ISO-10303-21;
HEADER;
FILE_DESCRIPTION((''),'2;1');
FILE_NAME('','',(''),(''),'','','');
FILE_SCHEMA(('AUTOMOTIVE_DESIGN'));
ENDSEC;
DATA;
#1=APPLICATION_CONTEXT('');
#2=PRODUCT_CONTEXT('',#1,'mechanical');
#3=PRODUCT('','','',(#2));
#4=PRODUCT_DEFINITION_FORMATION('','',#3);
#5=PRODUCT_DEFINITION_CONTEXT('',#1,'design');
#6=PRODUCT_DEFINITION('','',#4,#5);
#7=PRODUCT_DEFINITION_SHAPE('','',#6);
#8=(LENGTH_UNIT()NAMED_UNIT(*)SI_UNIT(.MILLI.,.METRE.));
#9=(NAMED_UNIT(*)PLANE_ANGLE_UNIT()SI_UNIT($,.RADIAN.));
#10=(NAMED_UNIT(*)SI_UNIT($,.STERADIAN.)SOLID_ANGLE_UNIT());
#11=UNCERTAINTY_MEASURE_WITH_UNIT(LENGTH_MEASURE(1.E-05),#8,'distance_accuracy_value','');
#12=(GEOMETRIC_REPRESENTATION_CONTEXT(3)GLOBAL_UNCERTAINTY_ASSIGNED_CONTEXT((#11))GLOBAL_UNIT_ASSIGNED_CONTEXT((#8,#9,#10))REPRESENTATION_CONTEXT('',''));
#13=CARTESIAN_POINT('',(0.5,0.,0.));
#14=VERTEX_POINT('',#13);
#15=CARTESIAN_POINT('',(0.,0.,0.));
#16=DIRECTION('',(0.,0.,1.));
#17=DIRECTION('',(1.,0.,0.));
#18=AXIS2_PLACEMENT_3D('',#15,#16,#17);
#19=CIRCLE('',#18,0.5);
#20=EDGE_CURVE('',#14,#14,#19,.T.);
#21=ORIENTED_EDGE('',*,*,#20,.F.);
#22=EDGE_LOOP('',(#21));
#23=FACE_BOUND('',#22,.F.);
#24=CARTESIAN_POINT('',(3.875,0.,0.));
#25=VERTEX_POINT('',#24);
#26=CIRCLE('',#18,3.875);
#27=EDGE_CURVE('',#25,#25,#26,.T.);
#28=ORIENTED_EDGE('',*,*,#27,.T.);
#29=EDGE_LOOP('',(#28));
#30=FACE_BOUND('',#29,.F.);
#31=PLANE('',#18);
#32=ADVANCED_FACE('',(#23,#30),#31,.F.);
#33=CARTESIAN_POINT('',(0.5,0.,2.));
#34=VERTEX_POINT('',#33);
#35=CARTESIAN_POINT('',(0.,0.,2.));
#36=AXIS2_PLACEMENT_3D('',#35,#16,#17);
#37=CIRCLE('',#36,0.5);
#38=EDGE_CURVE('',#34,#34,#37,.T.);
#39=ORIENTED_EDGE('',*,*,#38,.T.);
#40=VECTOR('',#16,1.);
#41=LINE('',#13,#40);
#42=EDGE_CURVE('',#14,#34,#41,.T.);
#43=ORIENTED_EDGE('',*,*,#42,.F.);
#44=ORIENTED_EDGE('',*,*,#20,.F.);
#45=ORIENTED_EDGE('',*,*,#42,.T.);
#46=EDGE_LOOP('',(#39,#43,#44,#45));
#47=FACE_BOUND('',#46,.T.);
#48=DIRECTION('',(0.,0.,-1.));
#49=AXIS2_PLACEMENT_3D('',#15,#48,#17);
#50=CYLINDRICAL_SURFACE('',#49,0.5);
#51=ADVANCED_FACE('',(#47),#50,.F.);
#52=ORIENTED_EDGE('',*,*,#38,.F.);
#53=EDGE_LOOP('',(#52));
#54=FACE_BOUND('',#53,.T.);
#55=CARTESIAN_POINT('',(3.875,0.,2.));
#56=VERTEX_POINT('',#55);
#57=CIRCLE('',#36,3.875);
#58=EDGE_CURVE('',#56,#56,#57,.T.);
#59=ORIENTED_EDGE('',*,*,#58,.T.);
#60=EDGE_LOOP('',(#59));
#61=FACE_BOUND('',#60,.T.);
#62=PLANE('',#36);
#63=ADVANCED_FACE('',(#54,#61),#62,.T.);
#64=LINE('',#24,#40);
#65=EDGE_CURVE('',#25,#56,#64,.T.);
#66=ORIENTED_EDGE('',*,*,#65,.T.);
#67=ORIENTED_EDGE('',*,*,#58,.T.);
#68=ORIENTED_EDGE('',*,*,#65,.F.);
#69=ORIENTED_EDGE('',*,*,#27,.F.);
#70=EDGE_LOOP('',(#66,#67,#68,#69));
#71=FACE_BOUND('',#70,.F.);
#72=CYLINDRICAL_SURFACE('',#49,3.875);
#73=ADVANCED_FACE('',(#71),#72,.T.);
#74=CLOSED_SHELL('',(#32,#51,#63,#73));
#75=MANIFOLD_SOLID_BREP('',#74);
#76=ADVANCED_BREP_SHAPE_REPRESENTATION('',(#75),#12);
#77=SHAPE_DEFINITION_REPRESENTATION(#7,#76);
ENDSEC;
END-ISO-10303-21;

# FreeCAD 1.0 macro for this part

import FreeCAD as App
import Part
import Sketcher

V = App.Vector

doc = App.newDocument("Part")
body = doc.addObject("PartDesign::Body", "Body")

sketch1 = body.newObject("Sketcher::SketchObject", "Sketch")
sketch1.AttachmentSupport = (doc.getObject("XY_Plane"), [""])
sketch1.MapMode = "FlatFace"
sketch1.addGeometry([
    Part.Circle(V(0, 0, 0), V(0, 0, 1), 3.875),
    Part.Circle(V(0, 0, 0), V(0, 0, 1), 0.5),
], False)
sketch1.addConstraint([
    Sketcher.Constraint("Coincident", 0, 3, -1, 1),
    Sketcher.Constraint("Coincident", 1, 3, -1, 1),
    Sketcher.Constraint("Diameter", 1, 1.0),
    Sketcher.Constraint("Diameter", 0, 7.75),
])
pad1 = body.newObject("PartDesign::Pad", "Pad")
pad1.Profile = sketch1
pad1.Length = 2

doc.recompute()
